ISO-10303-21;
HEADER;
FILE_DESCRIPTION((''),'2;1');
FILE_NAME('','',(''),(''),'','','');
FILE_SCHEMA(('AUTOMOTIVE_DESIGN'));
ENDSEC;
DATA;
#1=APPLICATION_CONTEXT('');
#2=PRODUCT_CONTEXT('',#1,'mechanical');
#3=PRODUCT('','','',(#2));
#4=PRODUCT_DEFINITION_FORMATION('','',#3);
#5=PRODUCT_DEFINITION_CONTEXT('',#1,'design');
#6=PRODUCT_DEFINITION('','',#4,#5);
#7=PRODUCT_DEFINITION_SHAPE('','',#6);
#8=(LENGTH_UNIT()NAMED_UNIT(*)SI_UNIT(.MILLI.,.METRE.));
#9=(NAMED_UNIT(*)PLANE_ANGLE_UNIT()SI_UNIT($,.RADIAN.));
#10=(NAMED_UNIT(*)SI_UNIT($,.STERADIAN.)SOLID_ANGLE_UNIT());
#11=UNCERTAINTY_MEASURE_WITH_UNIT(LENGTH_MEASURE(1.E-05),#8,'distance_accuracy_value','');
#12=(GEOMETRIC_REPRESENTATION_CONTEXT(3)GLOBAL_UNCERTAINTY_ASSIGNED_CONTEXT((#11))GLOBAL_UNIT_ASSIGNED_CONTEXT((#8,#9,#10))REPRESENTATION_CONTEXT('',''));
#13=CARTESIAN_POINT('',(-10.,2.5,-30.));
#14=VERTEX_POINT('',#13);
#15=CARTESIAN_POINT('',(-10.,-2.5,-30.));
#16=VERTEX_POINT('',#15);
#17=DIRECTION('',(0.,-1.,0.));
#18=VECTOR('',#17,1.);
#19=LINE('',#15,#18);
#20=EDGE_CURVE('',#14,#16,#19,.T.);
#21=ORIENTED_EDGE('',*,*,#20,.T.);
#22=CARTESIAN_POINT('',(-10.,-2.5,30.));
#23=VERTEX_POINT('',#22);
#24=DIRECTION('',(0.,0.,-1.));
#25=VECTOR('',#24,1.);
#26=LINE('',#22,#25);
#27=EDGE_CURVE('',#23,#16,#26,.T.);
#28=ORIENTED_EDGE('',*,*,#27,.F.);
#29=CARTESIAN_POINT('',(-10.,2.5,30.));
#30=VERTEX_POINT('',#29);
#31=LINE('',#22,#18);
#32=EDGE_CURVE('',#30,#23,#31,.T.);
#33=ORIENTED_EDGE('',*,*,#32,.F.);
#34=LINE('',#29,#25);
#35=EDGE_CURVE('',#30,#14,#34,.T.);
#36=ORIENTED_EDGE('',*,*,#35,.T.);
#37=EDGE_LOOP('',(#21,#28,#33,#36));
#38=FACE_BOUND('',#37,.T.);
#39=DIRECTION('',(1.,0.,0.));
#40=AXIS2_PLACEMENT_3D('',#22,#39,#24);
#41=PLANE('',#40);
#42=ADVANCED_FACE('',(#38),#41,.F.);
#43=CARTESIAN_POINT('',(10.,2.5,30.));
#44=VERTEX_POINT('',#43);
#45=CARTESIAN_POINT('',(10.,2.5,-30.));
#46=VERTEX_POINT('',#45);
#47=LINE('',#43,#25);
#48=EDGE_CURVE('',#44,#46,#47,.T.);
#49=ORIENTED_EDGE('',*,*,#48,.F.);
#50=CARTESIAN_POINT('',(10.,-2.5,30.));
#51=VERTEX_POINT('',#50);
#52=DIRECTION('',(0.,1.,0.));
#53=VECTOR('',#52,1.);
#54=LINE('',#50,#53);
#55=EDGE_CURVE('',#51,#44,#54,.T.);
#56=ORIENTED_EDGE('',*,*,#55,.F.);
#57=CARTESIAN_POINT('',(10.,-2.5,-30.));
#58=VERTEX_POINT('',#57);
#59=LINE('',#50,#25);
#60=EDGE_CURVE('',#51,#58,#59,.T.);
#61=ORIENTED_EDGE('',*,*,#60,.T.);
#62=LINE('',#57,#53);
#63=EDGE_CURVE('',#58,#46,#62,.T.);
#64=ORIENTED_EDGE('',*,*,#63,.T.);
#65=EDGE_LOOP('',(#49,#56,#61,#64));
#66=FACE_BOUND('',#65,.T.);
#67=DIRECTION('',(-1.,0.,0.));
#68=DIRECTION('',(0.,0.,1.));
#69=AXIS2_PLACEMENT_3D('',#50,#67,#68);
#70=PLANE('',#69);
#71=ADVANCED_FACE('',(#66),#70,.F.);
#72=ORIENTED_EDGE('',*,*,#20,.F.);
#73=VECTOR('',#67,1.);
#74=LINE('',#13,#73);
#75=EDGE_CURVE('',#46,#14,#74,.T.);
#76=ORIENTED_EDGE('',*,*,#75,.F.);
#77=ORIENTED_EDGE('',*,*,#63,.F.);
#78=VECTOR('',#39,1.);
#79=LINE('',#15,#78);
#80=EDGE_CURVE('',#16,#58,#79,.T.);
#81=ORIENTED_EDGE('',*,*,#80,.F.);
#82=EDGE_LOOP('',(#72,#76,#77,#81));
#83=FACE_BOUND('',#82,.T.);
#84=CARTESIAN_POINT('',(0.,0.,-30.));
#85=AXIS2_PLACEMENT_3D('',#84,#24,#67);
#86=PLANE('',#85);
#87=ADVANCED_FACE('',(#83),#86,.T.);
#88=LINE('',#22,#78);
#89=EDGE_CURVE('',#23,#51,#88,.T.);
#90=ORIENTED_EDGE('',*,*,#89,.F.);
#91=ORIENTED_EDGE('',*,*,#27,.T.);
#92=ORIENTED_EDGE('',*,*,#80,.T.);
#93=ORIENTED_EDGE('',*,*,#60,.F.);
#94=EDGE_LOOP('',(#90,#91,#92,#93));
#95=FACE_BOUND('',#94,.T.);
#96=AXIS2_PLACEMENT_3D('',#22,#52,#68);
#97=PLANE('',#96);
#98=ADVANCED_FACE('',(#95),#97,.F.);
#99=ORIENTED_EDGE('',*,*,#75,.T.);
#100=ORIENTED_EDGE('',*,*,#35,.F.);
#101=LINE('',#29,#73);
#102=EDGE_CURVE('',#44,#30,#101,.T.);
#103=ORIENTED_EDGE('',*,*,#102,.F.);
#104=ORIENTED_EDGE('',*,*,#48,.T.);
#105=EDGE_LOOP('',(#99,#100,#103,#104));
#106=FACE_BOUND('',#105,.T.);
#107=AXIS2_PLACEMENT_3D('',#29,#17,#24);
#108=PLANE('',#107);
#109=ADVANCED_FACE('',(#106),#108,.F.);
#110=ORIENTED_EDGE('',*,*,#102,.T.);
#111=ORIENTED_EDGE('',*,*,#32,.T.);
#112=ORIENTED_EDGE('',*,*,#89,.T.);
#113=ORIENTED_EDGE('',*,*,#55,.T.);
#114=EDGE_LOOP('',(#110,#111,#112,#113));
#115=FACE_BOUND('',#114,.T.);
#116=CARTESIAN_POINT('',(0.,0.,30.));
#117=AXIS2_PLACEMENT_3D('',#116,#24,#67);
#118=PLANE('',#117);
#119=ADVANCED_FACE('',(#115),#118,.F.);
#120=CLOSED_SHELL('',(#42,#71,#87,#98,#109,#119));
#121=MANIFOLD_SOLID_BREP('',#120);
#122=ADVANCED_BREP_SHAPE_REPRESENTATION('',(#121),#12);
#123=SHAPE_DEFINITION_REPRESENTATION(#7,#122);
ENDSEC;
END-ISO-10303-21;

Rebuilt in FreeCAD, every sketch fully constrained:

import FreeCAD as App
import Part
import Sketcher
Q = App.Units.Quantity


def add_polygon(sketch, points):
    """Adds a closed chain of lines whose ends are joined by coincident constraints."""
    first, n = sketch.GeometryCount, len(points)
    for a, b in zip(points, points[1:] + points[:1]):
        sketch.addGeometry(Part.LineSegment(App.Vector(*a, 0), App.Vector(*b, 0)), False)
    for i in range(n):
        sketch.addConstraint(Sketcher.Constraint("Coincident", first + i, 2, first + (i + 1) % n, 1))

doc = App.newDocument("Part")
body = doc.addObject("PartDesign::Body", "Body")

# Sketch on XY plane
sketch1 = doc.addObject("Sketcher::SketchObject", "Sketch")
body.addObject(sketch1)
sketch1.AttachmentSupport = (doc.XY_Plane, [""])
sketch1.MapMode = "FlatFace"
add_polygon(sketch1, [(-10, 2.5), (-10, -2.5), (10, -2.5), (10, 2.5)])  # lines 0-3
sketch1.addConstraint([
    Sketcher.Constraint("Vertical", 0),
    Sketcher.Constraint("Horizontal", 1),
    Sketcher.Constraint("Vertical", 2),
    Sketcher.Constraint("Horizontal", 3),
    Sketcher.Constraint("Symmetric", 0, 2, 2, 2, -1, 1),
    Sketcher.Constraint("DistanceX", 1, 1, 1, 2, Q("20 mm")),
    Sketcher.Constraint("DistanceY", 0, 2, 0, 1, Q("5 mm")),
])
pad1 = doc.addObject("PartDesign::Pad", "Pad")
body.addObject(pad1)
pad1.Profile = sketch1
pad1.Length = 60
pad1.Midplane = True

doc.recompute()
